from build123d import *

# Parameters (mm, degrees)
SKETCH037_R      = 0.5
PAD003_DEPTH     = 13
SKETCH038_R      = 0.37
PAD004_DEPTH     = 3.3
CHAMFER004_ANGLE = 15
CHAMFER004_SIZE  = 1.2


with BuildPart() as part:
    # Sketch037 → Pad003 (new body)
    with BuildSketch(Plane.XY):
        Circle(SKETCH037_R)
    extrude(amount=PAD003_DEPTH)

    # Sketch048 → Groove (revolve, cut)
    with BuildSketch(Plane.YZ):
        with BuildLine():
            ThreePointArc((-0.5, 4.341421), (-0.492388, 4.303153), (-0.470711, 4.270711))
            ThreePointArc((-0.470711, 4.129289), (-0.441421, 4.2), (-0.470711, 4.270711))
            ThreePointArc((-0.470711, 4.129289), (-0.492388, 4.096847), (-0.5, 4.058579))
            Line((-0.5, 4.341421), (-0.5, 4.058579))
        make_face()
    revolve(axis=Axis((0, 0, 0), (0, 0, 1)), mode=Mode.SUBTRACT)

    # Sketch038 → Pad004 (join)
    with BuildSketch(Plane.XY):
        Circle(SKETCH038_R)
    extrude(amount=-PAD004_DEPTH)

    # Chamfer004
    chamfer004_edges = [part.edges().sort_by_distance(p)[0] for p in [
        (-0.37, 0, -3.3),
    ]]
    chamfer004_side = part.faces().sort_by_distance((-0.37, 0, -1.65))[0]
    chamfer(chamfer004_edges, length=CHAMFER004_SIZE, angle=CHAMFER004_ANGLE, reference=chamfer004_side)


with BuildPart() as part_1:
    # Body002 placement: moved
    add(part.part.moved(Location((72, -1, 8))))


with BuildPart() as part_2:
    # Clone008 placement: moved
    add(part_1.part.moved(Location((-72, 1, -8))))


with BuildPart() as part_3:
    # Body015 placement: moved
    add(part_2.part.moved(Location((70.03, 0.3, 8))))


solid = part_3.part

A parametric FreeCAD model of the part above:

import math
import FreeCAD as App
import Part
import Sketcher
from FreeCAD import Vector


def edges_at(feature, points):
    """Names of the edges that pass closest to the given points."""
    edges = feature.Shape.Edges
    near = lambda p: min(range(len(edges)), key=lambda i: edges[i].distToShape(Part.Vertex(*p))[0])
    return sorted({f"Edge{near(p) + 1}" for p in points})

doc = App.newDocument("Part")
body = doc.addObject("PartDesign::Body", "Body")

sketch1 = body.newObject("Sketcher::SketchObject", "Sketch")
sketch1.AttachmentSupport = (doc.getObject("XY_Plane"), [""])
sketch1.MapMode = "FlatFace"
sketch1.addGeometry(Part.Circle(Vector(0, 0, 0), Vector(0, 0, 1), 0.5), False)
sketch1.addConstraint(Sketcher.Constraint("Coincident", 0, 3, -1, 1))
sketch1.addConstraint(Sketcher.Constraint("Diameter", 0, 1.0))
pad1 = body.newObject("PartDesign::Pad", "Pad")
pad1.Profile = sketch1
pad1.Length = 13

sketch2 = body.newObject("Sketcher::SketchObject", "Sketch001")
sketch2.AttachmentSupport = (doc.getObject("YZ_Plane"), [""])
sketch2.MapMode = "FlatFace"
sketch2.addGeometry(Part.ArcOfCircle(Part.Circle(Vector(-0.4, 4.34, 0), Vector(0, 0, 1), 0.1), math.radians(-180), math.radians(-135)), False)
sketch2.addGeometry(Part.LineSegment(Vector(-0.5, 4.34, 0), Vector(-0.5, 4.06, 0)), False)
sketch2.addGeometry(Part.ArcOfCircle(Part.Circle(Vector(-0.4, 4.06, 0), Vector(0, 0, 1), 0.1), math.radians(135), math.radians(180)), False)
sketch2.addGeometry(Part.ArcOfCircle(Part.Circle(Vector(-0.54, 4.2, 0), Vector(0, 0, 1), 0.1), math.radians(-45), math.radians(45)), False)
sketch2.addConstraint(Sketcher.Constraint("Tangent", 0, 1, 1, 1))
sketch2.addConstraint(Sketcher.Constraint("Tangent", 1, 2, 2, 2))
sketch2.addConstraint(Sketcher.Constraint("Coincident", 2, 1, 3, 1))
sketch2.addConstraint(Sketcher.Constraint("Coincident", 3, 2, 0, 2))
sketch2.addConstraint(Sketcher.Constraint("Vertical", 1))
sketch2.addConstraint(Sketcher.Constraint("Equal", 0, 2))
sketch2.addConstraint(Sketcher.Constraint("Equal", 2, 3))
sketch2.addConstraint(Sketcher.Constraint("Vertical", 2, 1, 3, 2))
sketch2.addConstraint(Sketcher.Constraint("Radius", 0, 0.099999))
sketch2.addConstraint(Sketcher.Constraint("DistanceX", 0, 3, -1, 1, 0.400001))
sketch2.addConstraint(Sketcher.Constraint("DistanceY", -1, 1, 3, 3, 4.2))
sketch2.addConstraint(Sketcher.Constraint("DistanceY", 1, 2, 1, 1, 0.282842))
sketch2.addConstraint(Sketcher.Constraint("DistanceX", 2, 1, -1, 1, 0.470711))
groove = body.newObject("PartDesign::Groove", "Groove")
groove.Profile = sketch2
groove.ReferenceAxis = (sketch2, ["V_Axis"])
groove.Angle = 360

sketch3 = body.newObject("Sketcher::SketchObject", "Sketch002")
sketch3.AttachmentSupport = (doc.getObject("XY_Plane"), [""])
sketch3.MapMode = "FlatFace"
sketch3.addGeometry(Part.Circle(Vector(0, 0, 0), Vector(0, 0, 1), 0.37), False)
sketch3.addConstraint(Sketcher.Constraint("Coincident", 0, 3, -1, 1))
sketch3.addConstraint(Sketcher.Constraint("Diameter", 0, 0.74))
pad2 = body.newObject("PartDesign::Pad", "Pad001")
pad2.Profile = sketch3
pad2.Length = 3.3
pad2.Reversed = True
doc.recompute()

chamfer = body.newObject("PartDesign::Chamfer", "Chamfer")
chamfer.Base = (pad2, edges_at(pad2, [(-0.37, 0, -3.3)]))
chamfer.ChamferType = "Distance and Angle"
chamfer.Size = 1.2
chamfer.Angle = 15
body2 = doc.addObject("PartDesign::Body", "Body001")
doc.recompute()

body.Placement = App.Placement(Vector(72, -1, 8), App.Rotation(Vector(0, 0, 1), 0))
boolean = body2.newObject("PartDesign::Boolean", "Boolean")
boolean.Type = "Fuse"
boolean.addObjects([body])
body3 = doc.addObject("PartDesign::Body", "Body002")
doc.recompute()

body2.Placement = App.Placement(Vector(-72, 1, -8), App.Rotation(Vector(0, 0, 1), 0))
boolean2 = body3.newObject("PartDesign::Boolean", "Boolean001")
boolean2.Type = "Fuse"
boolean2.addObjects([body2])
body4 = doc.addObject("PartDesign::Body", "Body003")
doc.recompute()

body3.Placement = App.Placement(Vector(70.03, 0.3, 8), App.Rotation(Vector(0, 0, 1), 0))
boolean3 = body4.newObject("PartDesign::Boolean", "Boolean002")
boolean3.Type = "Fuse"
boolean3.addObjects([body3])

doc.recompute()
